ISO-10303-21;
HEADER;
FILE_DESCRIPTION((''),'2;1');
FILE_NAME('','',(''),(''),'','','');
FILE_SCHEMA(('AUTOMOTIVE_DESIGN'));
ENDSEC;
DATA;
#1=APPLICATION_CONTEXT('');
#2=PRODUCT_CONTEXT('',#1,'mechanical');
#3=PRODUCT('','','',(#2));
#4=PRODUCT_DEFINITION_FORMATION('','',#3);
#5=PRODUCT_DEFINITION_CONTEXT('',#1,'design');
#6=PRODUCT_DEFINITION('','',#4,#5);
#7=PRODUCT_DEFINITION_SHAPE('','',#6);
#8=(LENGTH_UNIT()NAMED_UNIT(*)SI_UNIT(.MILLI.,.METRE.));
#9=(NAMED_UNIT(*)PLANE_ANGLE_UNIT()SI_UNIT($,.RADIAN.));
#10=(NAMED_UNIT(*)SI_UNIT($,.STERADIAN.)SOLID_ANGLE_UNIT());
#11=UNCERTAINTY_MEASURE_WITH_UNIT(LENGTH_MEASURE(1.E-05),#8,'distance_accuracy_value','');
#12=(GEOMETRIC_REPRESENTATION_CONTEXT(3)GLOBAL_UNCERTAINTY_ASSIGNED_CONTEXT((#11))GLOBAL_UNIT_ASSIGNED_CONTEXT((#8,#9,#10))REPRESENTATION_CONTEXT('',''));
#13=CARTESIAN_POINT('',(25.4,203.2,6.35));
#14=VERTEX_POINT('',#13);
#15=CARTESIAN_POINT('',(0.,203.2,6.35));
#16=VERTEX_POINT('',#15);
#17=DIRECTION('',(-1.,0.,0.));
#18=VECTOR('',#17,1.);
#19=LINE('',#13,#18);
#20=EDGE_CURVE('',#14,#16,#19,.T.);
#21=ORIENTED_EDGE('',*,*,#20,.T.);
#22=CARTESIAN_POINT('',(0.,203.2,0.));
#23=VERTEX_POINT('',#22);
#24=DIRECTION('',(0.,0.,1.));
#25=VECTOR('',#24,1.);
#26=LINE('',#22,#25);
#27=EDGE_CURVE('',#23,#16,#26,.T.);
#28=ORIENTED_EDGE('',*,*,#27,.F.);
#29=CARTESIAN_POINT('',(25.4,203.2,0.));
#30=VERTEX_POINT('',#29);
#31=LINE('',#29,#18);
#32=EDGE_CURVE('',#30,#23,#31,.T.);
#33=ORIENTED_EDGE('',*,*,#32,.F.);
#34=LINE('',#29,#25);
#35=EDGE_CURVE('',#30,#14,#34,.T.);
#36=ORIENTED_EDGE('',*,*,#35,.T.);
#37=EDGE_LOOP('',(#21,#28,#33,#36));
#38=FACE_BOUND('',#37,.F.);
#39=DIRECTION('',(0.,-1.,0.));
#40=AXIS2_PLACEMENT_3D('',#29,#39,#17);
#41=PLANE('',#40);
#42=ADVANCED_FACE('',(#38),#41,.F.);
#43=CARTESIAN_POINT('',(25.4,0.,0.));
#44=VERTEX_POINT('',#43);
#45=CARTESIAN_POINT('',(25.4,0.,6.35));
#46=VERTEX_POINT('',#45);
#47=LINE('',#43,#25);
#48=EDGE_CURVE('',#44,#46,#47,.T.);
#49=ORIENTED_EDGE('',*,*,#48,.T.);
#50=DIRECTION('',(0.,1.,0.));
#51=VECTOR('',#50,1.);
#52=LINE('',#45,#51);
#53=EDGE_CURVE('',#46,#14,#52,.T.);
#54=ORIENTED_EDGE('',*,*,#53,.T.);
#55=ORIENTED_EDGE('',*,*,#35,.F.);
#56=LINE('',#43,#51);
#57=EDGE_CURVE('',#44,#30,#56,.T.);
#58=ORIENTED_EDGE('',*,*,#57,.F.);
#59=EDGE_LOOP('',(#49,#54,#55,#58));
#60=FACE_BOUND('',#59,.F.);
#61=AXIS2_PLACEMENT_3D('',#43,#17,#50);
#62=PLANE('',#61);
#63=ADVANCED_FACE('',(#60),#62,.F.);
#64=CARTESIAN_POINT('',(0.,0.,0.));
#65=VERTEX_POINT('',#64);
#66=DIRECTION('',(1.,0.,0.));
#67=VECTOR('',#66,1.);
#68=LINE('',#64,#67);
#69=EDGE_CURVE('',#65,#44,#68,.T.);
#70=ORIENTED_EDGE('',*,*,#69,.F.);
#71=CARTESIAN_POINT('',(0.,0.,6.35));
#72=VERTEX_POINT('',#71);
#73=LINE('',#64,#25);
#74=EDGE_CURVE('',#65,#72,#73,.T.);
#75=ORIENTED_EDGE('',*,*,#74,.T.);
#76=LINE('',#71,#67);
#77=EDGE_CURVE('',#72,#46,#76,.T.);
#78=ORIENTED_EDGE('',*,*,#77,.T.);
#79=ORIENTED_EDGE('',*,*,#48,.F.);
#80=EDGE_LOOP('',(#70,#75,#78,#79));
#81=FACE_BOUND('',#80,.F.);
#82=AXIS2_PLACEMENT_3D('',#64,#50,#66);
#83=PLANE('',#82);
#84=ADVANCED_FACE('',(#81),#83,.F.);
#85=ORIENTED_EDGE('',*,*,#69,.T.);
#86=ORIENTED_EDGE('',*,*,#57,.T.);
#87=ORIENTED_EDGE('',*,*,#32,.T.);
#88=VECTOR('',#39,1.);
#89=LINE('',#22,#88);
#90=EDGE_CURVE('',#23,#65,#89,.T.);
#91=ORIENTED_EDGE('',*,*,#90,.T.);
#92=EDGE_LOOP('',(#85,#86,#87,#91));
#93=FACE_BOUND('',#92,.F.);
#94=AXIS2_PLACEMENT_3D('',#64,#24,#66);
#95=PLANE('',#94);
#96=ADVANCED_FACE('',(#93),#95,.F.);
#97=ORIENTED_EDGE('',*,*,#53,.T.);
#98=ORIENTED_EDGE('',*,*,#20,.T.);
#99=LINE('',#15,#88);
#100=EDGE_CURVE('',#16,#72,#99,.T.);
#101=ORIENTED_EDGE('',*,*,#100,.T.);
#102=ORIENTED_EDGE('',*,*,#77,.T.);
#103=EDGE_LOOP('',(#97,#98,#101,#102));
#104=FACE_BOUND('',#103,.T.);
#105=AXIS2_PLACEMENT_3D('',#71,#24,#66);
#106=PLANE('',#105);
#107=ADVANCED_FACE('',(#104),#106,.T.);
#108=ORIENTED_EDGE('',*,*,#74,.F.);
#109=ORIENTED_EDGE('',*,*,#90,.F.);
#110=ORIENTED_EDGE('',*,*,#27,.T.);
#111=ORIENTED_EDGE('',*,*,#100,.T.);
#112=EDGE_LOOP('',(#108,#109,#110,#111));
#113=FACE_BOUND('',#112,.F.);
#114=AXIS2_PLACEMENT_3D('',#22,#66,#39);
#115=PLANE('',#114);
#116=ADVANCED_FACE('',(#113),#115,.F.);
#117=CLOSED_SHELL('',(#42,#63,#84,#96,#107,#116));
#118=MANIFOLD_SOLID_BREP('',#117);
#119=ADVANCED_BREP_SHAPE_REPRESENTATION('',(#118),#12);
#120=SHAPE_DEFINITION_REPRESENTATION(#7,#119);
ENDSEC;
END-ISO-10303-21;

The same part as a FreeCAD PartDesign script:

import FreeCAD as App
import Part
import Sketcher

V = App.Vector
Q = App.Units.Quantity


def add_polygon(sketch, points):
    """Adds a closed chain of lines whose ends are joined by coincident constraints."""
    first, n = sketch.GeometryCount, len(points)
    for a, b in zip(points, points[1:] + points[:1]):
        sketch.addGeometry(Part.LineSegment(App.Vector(*a, 0), App.Vector(*b, 0)), False)
    for i in range(n):
        sketch.addConstraint(Sketcher.Constraint("Coincident", first + i, 2, first + (i + 1) % n, 1))

doc = App.newDocument("Part")
body = doc.addObject("PartDesign::Body", "Body")

sketch1 = doc.addObject("Sketcher::SketchObject", "Sketch")
body.addObject(sketch1)
sketch1.AttachmentSupport = (doc.XY_Plane, [""])
sketch1.MapMode = "FlatFace"
add_polygon(sketch1, [(0, 203), (0, 0), (25, 0), (25, 203)])
sketch1.addConstraint([
    Sketcher.Constraint("Vertical", 0),
    Sketcher.Constraint("Horizontal", 1),
    Sketcher.Constraint("Vertical", 2),
    Sketcher.Constraint("Horizontal", 3),
    Sketcher.Constraint("Coincident", 0, 2, -1, 1),
    Sketcher.Constraint("DistanceX", 1, 1, 1, 2, Q("1 in")),
    Sketcher.Constraint("DistanceY", 0, 2, 0, 1, Q("8 in")),
])
pad1 = doc.addObject("PartDesign::Pad", "Pad")
body.addObject(pad1)
pad1.Profile = sketch1
pad1.Length = Q("0.25 in")

doc.recompute()
